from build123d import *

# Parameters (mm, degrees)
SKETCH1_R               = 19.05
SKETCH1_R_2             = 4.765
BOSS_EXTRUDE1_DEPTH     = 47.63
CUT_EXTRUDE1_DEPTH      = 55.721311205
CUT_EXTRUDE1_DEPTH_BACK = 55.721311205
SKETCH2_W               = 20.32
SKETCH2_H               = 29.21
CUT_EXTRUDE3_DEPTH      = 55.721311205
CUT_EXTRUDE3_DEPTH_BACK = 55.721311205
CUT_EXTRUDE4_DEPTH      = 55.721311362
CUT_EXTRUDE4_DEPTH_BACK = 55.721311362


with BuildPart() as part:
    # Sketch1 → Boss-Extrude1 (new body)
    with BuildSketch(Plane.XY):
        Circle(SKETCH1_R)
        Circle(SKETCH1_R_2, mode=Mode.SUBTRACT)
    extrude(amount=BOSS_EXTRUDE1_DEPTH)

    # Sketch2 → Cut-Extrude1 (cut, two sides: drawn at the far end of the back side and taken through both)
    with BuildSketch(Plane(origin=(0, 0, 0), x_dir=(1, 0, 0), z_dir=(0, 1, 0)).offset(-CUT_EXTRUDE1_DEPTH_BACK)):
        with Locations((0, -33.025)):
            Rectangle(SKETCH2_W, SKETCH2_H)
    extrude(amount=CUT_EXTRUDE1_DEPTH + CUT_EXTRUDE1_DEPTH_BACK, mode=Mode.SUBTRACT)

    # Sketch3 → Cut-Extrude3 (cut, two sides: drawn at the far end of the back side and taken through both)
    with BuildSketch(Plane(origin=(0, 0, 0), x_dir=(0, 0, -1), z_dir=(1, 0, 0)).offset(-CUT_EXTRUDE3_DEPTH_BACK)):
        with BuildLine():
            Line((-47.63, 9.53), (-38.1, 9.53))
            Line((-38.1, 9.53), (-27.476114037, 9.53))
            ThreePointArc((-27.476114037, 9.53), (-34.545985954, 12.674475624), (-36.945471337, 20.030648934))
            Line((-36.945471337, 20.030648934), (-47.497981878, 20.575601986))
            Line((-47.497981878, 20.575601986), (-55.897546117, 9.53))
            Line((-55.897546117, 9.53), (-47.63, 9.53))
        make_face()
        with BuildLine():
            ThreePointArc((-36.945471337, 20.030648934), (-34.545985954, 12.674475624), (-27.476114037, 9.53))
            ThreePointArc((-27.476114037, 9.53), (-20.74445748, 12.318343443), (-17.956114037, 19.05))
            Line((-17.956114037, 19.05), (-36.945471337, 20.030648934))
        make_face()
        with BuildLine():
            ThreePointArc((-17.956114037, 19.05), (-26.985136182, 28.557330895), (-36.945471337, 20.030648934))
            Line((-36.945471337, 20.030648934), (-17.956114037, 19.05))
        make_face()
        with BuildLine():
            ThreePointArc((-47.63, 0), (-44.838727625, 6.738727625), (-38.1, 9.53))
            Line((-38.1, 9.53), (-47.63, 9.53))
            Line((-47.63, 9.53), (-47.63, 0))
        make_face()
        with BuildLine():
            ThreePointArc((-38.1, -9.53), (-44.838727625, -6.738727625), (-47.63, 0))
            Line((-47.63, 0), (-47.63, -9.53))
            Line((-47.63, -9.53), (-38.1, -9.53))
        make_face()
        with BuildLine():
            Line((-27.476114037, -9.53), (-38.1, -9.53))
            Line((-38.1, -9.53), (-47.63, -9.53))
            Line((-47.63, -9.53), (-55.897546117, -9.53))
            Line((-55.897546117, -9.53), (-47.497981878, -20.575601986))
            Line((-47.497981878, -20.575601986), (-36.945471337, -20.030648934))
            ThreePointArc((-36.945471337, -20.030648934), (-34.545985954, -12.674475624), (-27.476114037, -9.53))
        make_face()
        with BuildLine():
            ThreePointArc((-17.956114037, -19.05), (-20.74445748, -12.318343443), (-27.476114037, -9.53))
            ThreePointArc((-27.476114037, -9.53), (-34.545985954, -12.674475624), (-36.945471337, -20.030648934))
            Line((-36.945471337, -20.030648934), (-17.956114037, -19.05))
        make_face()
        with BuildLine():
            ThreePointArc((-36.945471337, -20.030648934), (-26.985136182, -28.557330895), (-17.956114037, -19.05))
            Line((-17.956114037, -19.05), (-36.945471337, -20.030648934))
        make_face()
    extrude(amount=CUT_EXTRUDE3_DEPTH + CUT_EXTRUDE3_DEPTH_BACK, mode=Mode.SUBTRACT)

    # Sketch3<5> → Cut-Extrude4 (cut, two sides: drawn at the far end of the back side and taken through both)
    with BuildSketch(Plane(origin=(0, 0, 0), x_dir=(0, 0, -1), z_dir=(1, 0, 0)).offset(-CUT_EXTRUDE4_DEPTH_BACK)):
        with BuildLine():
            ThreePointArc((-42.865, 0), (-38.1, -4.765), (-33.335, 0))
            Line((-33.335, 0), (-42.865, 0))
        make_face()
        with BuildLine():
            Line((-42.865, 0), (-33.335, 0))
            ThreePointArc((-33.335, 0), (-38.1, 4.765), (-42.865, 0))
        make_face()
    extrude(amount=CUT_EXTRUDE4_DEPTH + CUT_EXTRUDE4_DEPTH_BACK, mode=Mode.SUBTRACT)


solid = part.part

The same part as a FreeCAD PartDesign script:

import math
import FreeCAD as App
import Part
import Sketcher
from FreeCAD import Vector
Q = App.Units.Quantity

doc = App.newDocument("Part")
body = doc.addObject("PartDesign::Body", "Body")

sketch1 = body.newObject("Sketcher::SketchObject", "Sketch")
sketch1.AttachmentSupport = (doc.getObject("XY_Plane"), [""])
sketch1.MapMode = "FlatFace"
sketch1.addGeometry([
    Part.Circle(Vector(0, 0, 0), Vector(0, 0, 1), 19.05),
    Part.Circle(Vector(0, 0, 0), Vector(0, 0, 1), 4.765),
], False)
sketch1.addConstraint([
    Sketcher.Constraint("Coincident", 0, 3, -1, 1),
    Sketcher.Constraint("Coincident", 1, 3, -1, 1),
    Sketcher.Constraint("Diameter", 0, Q("1.5 in")),
    Sketcher.Constraint("Diameter", 1, Q("9.53 mm")),
])
pad1 = body.newObject("PartDesign::Pad", "Pad")
pad1.Profile = sketch1
pad1.Length = 47.63

sketch2 = body.newObject("Sketcher::SketchObject", "Sketch001")
sketch2.AttachmentSupport = (doc.getObject("XZ_Plane"), [""])
sketch2.MapMode = "FlatFace"
sketch2.addGeometry([
    Part.LineSegment(Vector(-10.16, 18.42, 0), Vector(-10.16, 47.63, 0)),
    Part.LineSegment(Vector(-10.16, 47.63, 0), Vector(10.16, 47.63, 0)),
    Part.LineSegment(Vector(10.16, 47.63, 0), Vector(10.16, 18.42, 0)),
    Part.LineSegment(Vector(10.16, 18.42, 0), Vector(-10.16, 18.42, 0)),
], False)
sketch2.addConstraint([
    Sketcher.Constraint("Coincident", 0, 2, 1, 1),
    Sketcher.Constraint("Coincident", 1, 2, 2, 1),
    Sketcher.Constraint("Coincident", 2, 2, 3, 1),
    Sketcher.Constraint("Coincident", 3, 2, 0, 1),
    Sketcher.Constraint("Vertical", 0),
    Sketcher.Constraint("Horizontal", 1),
    Sketcher.Constraint("Vertical", 2),
    Sketcher.Constraint("Horizontal", 3),
    Sketcher.Constraint("DistanceX", 1, 1, 1, 2, Q("0.8 in")),
    Sketcher.Constraint("DistanceY", 0, 1, 0, 2, Q("1.15 in")),
    Sketcher.Constraint("DistanceX", 0, 2, -1, 1, Q("0.4 in")),
    Sketcher.Constraint("DistanceY", -1, 1, 0, 2, Q("47.63 mm")),
])
pocket1 = body.newObject("PartDesign::Pocket", "Pocket")
pocket1.Profile = sketch2
pocket1.Type = "ThroughAll"
pocket1.Midplane = True

sketch3 = body.newObject("Sketcher::SketchObject", "Sketch002")
sketch3.AttachmentSupport = (doc.getObject("YZ_Plane"), [""])
sketch3.MapMode = "FlatFace"
sketch3.addGeometry([
    Part.LineSegment(Vector(20.030649, 36.945471, 0), Vector(20.575602, 47.497982, 0)),
    Part.LineSegment(Vector(20.575602, 47.497982, 0), Vector(9.53, 55.897546, 0)),
    Part.LineSegment(Vector(9.53, 55.897546, 0), Vector(9.53, 47.63, 0)),
    Part.LineSegment(Vector(9.53, 47.63, 0), Vector(0, 47.63, 0)),
    Part.ArcOfCircle(Part.Circle(Vector(0, 38.1, 0), Vector(0, 0, 1), 9.53), math.radians(0), math.radians(90)),
    Part.LineSegment(Vector(9.53, 38.1, 0), Vector(9.53, 27.476114, 0)),
    Part.ArcOfCircle(Part.Circle(Vector(19.05, 27.476114, 0), Vector(0, 0, 1), 9.52), math.radians(180), math.radians(270)),
    Part.ArcOfCircle(Part.Circle(Vector(19.05, 27.476114, 0), Vector(0, 0, 1), 9.52), math.radians(-90), math.radians(84.087512)),
    Part.ArcOfCircle(Part.Circle(Vector(0, 38.1, 0), Vector(0, 0, 1), 9.53), math.radians(90), math.radians(180)),
    Part.LineSegment(Vector(0, 47.63, 0), Vector(-9.53, 47.63, 0)),
    Part.LineSegment(Vector(-9.53, 47.63, 0), Vector(-9.53, 55.897546, 0)),
    Part.LineSegment(Vector(-9.53, 55.897546, 0), Vector(-20.575602, 47.497982, 0)),
    Part.LineSegment(Vector(-20.575602, 47.497982, 0), Vector(-20.030649, 36.945471, 0)),
    Part.ArcOfCircle(Part.Circle(Vector(-19.05, 27.476114, 0), Vector(0, 0, 1), 9.52), math.radians(95.912488), math.radians(270)),
    Part.ArcOfCircle(Part.Circle(Vector(-19.05, 27.476114, 0), Vector(0, 0, 1), 9.52), math.radians(-90), math.radians(0)),
    Part.LineSegment(Vector(-9.53, 27.476114, 0), Vector(-9.53, 38.1, 0)),
], False)
sketch3.addConstraint([
    Sketcher.Constraint("Coincident", 0, 2, 1, 1),
    Sketcher.Constraint("Coincident", 1, 2, 2, 1),
    Sketcher.Constraint("Coincident", 2, 2, 3, 1),
    Sketcher.Constraint("Tangent", 3, 2, 4, 2),
    Sketcher.Constraint("Tangent", 4, 1, 5, 1),
    Sketcher.Constraint("Tangent", 5, 2, 6, 1),
    Sketcher.Constraint("Tangent", 6, 2, 7, 1),
    Sketcher.Constraint("Coincident", 7, 2, 0, 1),
    Sketcher.Constraint("Tangent", 8, 1, 9, 1),
    Sketcher.Constraint("Coincident", 9, 2, 10, 1),
    Sketcher.Constraint("Coincident", 10, 2, 11, 1),
    Sketcher.Constraint("Coincident", 11, 2, 12, 1),
    Sketcher.Constraint("Coincident", 12, 2, 13, 1),
    Sketcher.Constraint("Tangent", 13, 2, 14, 1),
    Sketcher.Constraint("Tangent", 14, 2, 15, 1),
    Sketcher.Constraint("Tangent", 15, 2, 8, 2),
    Sketcher.Constraint("Vertical", 2),
    Sketcher.Constraint("Horizontal", 3),
    Sketcher.Constraint("Vertical", 5),
    Sketcher.Constraint("Horizontal", 9),
    Sketcher.Constraint("Vertical", 10),
    Sketcher.Constraint("Vertical", 15),
    Sketcher.Constraint("Coincident", 8, 3, 4, 3),
    Sketcher.Constraint("Equal", 6, 7),
    Sketcher.Constraint("Equal", 4, 8),
    Sketcher.Constraint("Equal", 7, 13),
    Sketcher.Constraint("Equal", 13, 14),
    Sketcher.Constraint("Symmetric", 6, 3, 13, 3, -2),
    Sketcher.Constraint("Symmetric", 1, 2, 10, 2, -2),
    Sketcher.Constraint("Symmetric", 0, 2, 11, 2, -2),
    Sketcher.Constraint("Horizontal", 7, 2, 12, 2),
    Sketcher.Constraint("Vertical", 2, 2, 4, 1),
    Sketcher.Constraint("Vertical", 7, 3, 6, 2),
    Sketcher.Constraint("Vertical", 14, 3, 13, 2),
    Sketcher.Constraint("DistanceY", -1, 1, 4, 3, Q("1.5 in")),
    Sketcher.Constraint("DistanceX", 13, 3, 6, 3, Q("1.5 in")),
    Sketcher.Constraint("Radius", 4, Q("9.53 mm")),
    Sketcher.Constraint("DistanceX", -1, 1, 0, 2, Q("20.575602 mm")),
    Sketcher.Constraint("DistanceY", 2, 2, 2, 1, Q("8.267546 mm")),
    Sketcher.Constraint("DistanceY", 5, 2, 5, 1, Q("10.623886 mm")),
    Sketcher.Constraint("DistanceY", -1, 1, 0, 2, Q("47.497982 mm")),
    Sketcher.Constraint("DistanceX", -1, 1, 7, 2, Q("20.030649 mm")),
])
pocket2 = body.newObject("PartDesign::Pocket", "Pocket001")
pocket2.Profile = sketch3
pocket2.Type = "ThroughAll"
pocket2.Midplane = True

sketch4 = body.newObject("Sketcher::SketchObject", "Sketch003")
sketch4.AttachmentSupport = (doc.getObject("YZ_Plane"), [""])
sketch4.MapMode = "FlatFace"
sketch4.addGeometry(Part.Circle(Vector(0, 38.1, 0), Vector(0, 0, 1), 4.765), False)
sketch4.addConstraint([
    Sketcher.Constraint("PointOnObject", 0, 3, -2),
    Sketcher.Constraint("DistanceY", -1, 1, 0, 3, Q("1.5 in")),
    Sketcher.Constraint("Diameter", 0, Q("9.53 mm")),
])
pocket3 = body.newObject("PartDesign::Pocket", "Pocket002")
pocket3.Profile = sketch4
pocket3.Type = "ThroughAll"
pocket3.Midplane = True

doc.recompute()
